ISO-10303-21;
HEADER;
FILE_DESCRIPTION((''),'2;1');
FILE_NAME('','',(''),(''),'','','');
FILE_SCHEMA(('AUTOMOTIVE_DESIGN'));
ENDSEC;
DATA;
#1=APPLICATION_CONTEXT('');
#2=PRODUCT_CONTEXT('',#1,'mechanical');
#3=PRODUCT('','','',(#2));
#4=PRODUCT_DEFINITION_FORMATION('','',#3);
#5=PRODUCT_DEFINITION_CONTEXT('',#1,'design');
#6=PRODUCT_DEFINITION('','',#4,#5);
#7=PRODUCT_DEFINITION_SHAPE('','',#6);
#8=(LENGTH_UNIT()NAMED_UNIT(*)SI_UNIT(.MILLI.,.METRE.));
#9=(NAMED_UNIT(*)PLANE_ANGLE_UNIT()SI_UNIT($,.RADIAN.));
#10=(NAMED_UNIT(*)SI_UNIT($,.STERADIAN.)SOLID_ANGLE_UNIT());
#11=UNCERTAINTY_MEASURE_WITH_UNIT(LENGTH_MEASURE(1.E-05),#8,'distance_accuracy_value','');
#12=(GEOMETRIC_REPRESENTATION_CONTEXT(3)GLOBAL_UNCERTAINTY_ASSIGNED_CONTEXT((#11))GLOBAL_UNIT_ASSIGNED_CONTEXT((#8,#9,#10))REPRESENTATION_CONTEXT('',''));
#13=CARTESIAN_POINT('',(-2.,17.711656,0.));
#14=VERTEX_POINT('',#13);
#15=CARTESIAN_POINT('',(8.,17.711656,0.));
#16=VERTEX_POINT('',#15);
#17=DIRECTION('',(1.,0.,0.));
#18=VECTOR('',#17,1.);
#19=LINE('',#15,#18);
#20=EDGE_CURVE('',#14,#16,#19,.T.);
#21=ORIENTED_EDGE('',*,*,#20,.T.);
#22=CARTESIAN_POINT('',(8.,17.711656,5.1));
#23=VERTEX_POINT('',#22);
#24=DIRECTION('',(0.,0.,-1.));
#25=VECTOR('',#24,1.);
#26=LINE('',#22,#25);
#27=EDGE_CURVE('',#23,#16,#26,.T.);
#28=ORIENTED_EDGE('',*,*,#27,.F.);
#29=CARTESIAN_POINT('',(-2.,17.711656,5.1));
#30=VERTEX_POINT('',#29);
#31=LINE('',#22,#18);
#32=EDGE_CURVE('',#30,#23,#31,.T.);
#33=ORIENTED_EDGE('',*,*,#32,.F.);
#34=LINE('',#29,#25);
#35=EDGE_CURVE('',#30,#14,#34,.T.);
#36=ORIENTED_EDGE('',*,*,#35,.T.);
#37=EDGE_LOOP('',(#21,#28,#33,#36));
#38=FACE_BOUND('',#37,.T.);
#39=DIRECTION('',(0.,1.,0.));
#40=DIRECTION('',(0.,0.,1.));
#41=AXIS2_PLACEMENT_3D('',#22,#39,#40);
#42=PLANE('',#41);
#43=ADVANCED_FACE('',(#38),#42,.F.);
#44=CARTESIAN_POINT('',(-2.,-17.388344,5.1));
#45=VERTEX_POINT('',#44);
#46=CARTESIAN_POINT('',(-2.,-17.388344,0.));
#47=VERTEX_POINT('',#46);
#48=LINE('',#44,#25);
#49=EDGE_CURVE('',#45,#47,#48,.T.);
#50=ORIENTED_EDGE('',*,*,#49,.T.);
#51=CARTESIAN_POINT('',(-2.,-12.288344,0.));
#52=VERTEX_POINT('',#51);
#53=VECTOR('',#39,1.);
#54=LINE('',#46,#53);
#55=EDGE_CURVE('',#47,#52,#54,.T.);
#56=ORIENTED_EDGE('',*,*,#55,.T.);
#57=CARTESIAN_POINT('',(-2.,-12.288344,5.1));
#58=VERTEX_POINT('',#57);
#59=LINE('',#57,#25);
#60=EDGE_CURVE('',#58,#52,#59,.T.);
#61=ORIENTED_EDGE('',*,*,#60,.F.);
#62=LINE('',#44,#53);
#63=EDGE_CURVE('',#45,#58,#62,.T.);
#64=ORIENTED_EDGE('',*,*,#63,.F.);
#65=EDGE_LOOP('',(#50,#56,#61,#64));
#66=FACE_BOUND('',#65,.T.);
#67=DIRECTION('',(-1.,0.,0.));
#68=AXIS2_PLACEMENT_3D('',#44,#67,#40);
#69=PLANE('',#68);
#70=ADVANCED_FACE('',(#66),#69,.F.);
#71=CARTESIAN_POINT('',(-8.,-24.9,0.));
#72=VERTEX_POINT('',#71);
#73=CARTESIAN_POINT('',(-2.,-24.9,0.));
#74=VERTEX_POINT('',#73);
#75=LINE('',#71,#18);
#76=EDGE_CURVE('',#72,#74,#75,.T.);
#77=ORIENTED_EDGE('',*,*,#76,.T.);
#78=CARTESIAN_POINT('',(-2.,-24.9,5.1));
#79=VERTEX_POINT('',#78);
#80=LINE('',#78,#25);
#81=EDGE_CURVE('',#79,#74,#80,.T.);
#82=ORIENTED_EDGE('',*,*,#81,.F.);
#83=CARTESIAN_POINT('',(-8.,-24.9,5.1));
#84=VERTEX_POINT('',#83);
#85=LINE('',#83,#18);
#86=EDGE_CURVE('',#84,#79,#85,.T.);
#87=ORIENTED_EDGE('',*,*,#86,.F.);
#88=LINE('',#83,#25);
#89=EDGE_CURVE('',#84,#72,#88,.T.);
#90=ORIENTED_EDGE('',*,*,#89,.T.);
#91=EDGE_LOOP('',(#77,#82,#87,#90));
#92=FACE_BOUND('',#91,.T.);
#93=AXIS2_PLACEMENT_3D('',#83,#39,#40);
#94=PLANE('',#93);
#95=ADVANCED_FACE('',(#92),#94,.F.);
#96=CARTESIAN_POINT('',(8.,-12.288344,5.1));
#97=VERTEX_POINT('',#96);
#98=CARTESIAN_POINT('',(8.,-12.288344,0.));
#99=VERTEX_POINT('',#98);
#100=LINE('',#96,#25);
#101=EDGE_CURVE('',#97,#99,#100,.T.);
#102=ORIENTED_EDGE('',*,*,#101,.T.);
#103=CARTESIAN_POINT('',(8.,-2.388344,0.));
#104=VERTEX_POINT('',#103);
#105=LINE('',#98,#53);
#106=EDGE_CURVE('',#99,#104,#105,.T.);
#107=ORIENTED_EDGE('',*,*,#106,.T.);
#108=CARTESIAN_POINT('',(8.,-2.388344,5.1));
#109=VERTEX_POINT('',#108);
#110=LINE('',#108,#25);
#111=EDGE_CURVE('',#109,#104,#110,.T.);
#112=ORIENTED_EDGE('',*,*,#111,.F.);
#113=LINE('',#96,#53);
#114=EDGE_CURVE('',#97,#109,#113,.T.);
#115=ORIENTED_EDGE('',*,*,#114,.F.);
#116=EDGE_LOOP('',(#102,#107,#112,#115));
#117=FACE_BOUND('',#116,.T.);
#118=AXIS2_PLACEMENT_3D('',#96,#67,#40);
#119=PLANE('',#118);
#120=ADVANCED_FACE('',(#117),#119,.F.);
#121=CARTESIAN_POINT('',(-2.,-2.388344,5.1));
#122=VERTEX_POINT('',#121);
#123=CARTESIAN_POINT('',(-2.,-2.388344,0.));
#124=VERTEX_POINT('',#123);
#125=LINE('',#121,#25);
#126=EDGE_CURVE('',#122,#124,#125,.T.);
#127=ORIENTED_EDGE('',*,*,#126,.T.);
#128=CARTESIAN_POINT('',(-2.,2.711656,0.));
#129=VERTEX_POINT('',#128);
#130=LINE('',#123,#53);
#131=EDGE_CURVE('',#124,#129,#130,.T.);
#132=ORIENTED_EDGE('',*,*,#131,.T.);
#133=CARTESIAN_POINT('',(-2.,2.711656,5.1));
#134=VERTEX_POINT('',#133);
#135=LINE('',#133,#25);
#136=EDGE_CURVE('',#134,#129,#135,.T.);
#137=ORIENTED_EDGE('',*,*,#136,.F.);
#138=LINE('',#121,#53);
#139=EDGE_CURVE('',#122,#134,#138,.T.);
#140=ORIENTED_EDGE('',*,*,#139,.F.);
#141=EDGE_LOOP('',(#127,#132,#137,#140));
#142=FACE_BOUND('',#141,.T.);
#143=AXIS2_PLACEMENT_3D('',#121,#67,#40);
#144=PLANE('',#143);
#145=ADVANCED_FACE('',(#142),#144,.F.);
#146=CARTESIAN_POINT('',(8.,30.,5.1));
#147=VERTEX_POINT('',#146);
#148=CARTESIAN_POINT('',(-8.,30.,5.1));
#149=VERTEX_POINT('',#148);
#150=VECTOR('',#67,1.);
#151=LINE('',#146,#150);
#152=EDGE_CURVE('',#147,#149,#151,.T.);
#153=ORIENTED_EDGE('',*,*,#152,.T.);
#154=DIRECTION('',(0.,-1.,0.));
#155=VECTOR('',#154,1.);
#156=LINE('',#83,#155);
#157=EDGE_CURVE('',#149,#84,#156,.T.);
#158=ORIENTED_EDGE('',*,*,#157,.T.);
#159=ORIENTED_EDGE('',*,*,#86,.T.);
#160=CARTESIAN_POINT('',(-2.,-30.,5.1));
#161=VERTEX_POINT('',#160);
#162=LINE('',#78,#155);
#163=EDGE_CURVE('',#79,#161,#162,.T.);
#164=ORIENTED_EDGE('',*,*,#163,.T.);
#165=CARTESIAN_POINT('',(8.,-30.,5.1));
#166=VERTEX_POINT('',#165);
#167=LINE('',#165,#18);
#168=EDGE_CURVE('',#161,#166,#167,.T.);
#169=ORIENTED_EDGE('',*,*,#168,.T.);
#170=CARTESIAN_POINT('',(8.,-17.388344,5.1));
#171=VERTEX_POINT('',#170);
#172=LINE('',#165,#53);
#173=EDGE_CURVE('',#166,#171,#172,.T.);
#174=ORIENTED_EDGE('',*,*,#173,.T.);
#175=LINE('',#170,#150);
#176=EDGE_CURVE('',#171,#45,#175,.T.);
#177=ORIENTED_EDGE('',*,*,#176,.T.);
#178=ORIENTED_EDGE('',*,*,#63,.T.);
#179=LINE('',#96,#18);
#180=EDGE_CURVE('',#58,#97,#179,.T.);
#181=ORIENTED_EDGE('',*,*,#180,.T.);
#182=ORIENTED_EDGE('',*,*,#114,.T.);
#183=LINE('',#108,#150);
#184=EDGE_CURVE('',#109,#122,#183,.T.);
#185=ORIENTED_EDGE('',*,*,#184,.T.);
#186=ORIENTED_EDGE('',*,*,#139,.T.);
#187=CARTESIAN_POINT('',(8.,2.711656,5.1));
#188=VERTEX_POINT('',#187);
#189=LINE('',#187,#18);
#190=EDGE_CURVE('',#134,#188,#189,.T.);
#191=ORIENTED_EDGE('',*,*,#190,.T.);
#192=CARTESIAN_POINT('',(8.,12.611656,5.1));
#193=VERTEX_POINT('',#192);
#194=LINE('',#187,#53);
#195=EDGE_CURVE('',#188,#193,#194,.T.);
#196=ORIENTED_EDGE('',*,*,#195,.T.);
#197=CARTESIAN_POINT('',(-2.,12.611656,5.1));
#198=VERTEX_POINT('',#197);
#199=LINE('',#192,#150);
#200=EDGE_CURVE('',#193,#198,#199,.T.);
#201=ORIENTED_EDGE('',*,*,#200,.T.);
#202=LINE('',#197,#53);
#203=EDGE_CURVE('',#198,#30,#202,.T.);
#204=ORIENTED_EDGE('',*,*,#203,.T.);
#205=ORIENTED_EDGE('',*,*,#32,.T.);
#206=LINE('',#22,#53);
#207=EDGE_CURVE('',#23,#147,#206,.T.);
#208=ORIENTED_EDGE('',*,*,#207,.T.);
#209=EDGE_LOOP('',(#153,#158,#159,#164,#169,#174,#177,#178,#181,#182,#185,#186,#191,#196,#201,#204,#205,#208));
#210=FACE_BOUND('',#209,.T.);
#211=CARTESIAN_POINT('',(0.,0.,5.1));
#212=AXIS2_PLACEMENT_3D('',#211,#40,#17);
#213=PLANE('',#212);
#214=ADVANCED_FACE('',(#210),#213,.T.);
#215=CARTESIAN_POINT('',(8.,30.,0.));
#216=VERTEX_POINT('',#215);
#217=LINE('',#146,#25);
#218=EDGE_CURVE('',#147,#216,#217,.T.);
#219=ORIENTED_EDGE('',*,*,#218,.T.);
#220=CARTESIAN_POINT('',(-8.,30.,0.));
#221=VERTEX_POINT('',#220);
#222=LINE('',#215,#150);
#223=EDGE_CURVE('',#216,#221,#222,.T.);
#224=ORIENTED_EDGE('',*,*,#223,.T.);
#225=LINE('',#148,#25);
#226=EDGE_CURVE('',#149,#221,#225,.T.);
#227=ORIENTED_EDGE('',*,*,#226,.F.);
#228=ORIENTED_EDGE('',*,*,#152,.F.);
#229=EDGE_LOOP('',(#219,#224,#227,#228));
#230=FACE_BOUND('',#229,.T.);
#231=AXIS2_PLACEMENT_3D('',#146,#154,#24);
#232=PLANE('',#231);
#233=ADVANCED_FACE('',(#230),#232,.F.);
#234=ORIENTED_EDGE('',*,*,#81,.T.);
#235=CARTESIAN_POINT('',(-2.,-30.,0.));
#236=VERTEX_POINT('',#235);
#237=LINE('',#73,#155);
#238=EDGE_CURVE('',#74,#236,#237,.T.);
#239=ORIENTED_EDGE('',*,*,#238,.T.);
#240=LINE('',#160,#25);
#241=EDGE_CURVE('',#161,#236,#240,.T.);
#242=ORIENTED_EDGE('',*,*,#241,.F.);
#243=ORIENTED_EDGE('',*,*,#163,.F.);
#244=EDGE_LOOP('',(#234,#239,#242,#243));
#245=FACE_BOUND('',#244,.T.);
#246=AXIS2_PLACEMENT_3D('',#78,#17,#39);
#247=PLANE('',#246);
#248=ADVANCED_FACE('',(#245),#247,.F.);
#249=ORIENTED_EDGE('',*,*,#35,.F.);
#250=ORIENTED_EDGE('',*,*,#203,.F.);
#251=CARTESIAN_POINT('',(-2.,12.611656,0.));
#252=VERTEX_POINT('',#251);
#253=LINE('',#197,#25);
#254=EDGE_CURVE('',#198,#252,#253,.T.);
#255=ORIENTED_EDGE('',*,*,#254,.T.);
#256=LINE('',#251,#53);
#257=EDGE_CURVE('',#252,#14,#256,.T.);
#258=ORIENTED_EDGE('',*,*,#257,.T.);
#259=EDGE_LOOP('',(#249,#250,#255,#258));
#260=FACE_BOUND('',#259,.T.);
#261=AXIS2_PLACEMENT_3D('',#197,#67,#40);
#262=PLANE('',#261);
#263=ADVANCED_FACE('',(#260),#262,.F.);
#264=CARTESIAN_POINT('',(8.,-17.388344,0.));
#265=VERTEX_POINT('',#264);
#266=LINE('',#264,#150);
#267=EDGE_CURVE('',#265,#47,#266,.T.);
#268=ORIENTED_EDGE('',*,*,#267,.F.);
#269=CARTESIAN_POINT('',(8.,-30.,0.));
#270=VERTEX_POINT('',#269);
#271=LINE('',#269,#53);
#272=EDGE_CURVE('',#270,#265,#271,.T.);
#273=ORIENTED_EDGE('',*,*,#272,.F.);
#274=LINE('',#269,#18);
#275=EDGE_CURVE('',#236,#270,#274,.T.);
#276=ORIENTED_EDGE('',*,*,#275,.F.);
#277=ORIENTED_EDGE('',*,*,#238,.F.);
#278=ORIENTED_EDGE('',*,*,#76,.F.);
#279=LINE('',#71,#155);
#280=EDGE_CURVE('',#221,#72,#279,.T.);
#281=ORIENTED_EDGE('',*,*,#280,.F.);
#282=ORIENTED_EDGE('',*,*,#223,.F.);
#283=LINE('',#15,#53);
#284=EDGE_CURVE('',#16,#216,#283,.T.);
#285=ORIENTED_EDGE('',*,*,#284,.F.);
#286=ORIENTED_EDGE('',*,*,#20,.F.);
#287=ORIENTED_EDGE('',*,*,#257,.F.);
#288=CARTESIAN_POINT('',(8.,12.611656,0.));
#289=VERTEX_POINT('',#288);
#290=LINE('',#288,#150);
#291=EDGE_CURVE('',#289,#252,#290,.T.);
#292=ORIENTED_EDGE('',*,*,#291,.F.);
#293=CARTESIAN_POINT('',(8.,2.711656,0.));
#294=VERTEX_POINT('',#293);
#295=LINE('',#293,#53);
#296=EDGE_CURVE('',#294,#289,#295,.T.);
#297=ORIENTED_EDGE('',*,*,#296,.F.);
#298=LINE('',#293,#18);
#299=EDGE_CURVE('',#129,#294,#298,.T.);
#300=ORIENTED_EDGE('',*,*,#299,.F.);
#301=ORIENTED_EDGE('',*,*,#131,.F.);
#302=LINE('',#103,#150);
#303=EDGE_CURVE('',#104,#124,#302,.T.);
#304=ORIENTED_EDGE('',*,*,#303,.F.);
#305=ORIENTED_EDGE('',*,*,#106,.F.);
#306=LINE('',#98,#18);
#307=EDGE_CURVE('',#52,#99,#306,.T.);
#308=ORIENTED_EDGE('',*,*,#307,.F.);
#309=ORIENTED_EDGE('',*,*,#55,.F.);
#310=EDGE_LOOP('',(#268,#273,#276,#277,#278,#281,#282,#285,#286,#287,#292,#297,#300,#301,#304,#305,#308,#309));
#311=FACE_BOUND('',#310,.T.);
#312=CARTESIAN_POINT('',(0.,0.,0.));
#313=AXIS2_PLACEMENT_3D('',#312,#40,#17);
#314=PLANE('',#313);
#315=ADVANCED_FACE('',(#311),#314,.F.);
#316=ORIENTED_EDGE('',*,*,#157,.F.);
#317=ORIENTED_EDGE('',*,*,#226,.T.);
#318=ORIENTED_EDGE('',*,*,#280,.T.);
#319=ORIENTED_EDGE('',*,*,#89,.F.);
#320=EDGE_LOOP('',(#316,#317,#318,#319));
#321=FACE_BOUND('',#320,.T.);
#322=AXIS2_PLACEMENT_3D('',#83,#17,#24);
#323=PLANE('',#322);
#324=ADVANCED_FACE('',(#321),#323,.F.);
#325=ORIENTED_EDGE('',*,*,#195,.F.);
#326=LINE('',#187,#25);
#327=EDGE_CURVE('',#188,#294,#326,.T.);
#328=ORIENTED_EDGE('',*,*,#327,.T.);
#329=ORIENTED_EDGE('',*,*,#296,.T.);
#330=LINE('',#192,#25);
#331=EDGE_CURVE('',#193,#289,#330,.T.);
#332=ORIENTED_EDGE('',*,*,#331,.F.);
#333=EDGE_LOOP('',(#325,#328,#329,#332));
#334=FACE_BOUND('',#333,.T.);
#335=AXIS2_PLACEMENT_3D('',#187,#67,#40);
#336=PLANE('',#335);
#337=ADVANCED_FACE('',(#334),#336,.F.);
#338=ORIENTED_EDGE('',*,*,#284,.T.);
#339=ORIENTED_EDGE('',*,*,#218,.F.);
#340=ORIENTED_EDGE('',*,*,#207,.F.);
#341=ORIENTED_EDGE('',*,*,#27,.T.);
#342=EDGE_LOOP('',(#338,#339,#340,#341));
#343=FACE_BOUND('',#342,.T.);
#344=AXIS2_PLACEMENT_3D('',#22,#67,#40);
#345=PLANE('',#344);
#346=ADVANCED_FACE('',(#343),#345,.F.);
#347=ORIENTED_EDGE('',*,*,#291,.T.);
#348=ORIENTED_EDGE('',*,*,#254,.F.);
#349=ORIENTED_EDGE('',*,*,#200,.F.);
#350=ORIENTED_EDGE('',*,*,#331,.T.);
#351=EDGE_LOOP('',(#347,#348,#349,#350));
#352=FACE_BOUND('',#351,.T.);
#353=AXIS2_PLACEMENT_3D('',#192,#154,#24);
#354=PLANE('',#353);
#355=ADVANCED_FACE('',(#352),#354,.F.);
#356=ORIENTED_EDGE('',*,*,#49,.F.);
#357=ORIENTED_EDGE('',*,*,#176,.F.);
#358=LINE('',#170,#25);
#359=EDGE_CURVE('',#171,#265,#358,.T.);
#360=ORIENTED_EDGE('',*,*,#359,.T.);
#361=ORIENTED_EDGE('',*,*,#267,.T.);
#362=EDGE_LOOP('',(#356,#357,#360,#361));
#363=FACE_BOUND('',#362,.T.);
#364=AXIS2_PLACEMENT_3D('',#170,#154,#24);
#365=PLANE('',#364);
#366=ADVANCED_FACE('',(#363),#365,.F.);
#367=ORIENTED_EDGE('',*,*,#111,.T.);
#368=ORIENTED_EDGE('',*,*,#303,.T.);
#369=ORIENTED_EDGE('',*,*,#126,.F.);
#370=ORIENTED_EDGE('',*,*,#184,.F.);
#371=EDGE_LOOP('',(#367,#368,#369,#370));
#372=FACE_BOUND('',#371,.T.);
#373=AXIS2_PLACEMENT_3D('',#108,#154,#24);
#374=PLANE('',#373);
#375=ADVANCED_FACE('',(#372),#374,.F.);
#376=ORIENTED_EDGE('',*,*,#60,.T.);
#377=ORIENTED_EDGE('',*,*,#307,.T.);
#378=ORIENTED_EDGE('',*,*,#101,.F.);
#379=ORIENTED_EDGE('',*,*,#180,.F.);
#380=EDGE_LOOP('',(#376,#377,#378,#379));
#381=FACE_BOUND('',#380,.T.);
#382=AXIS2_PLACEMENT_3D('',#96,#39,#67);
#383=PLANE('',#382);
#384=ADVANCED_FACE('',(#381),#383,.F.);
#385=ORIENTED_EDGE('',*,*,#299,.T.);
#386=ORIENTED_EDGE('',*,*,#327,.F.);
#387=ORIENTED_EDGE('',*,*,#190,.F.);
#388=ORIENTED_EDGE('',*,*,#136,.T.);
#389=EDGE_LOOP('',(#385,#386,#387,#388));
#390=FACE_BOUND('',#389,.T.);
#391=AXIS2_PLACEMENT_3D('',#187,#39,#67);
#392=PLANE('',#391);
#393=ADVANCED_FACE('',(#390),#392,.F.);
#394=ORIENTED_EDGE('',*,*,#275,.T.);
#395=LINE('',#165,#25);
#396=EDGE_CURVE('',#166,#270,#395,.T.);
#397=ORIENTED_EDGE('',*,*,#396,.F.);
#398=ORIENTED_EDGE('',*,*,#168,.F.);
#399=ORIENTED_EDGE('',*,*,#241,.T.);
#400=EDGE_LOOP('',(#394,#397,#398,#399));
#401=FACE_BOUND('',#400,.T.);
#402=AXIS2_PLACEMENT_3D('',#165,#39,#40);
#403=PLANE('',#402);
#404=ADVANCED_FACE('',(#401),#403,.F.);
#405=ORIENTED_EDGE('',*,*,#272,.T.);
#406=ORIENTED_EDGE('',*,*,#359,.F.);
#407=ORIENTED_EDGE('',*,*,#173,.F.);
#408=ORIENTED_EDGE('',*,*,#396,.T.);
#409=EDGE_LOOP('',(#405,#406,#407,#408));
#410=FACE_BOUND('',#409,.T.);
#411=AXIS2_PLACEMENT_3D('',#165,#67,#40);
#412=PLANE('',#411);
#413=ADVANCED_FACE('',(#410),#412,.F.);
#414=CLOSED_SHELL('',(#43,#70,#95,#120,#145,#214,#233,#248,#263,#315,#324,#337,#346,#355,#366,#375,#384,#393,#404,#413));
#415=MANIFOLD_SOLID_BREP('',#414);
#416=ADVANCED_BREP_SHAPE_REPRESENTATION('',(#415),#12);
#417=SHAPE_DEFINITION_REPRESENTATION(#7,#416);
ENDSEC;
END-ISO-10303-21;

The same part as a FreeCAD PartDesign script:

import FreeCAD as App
import Part
import Sketcher
from FreeCAD import Vector

doc = App.newDocument("Part")
body = doc.addObject("PartDesign::Body", "Body")

# Sketch on XY plane
sketch1 = body.newObject("Sketcher::SketchObject", "Sketch")
sketch1.AttachmentSupport = (doc.getObject("XY_Plane"), [""])
sketch1.MapMode = "FlatFace"
sketch1.addGeometry(Part.LineSegment(Vector(-8, -24.9, 0), Vector(-2, -24.9, 0)), False)
sketch1.addGeometry(Part.LineSegment(Vector(-2, -24.9, 0), Vector(-2, -30, 0)), False)
sketch1.addGeometry(Part.LineSegment(Vector(-2, -30, 0), Vector(8, -30, 0)), False)
sketch1.addGeometry(Part.LineSegment(Vector(8, -30, 0), Vector(8, -17.388344, 0)), False)
sketch1.addGeometry(Part.LineSegment(Vector(8, -17.388344, 0), Vector(-2, -17.388344, 0)), False)
sketch1.addGeometry(Part.LineSegment(Vector(-2, -17.388344, 0), Vector(-2, -12.288344, 0)), False)
sketch1.addGeometry(Part.LineSegment(Vector(-2, -12.288344, 0), Vector(8, -12.288344, 0)), False)
sketch1.addGeometry(Part.LineSegment(Vector(8, -12.288344, 0), Vector(8, -2.388344, 0)), False)
sketch1.addGeometry(Part.LineSegment(Vector(8, -2.388344, 0), Vector(-2, -2.388344, 0)), False)
sketch1.addGeometry(Part.LineSegment(Vector(-2, -2.388344, 0), Vector(-2, 2.711656, 0)), False)
sketch1.addGeometry(Part.LineSegment(Vector(-2, 2.711656, 0), Vector(8, 2.711656, 0)), False)
sketch1.addGeometry(Part.LineSegment(Vector(8, 2.711656, 0), Vector(8, 12.611656, 0)), False)
sketch1.addGeometry(Part.LineSegment(Vector(8, 12.611656, 0), Vector(-2, 12.611656, 0)), False)
sketch1.addGeometry(Part.LineSegment(Vector(-2, 12.611656, 0), Vector(-2, 17.711656, 0)), False)
sketch1.addGeometry(Part.LineSegment(Vector(-2, 17.711656, 0), Vector(8, 17.711656, 0)), False)
sketch1.addGeometry(Part.LineSegment(Vector(8, 17.711656, 0), Vector(8, 30, 0)), False)
sketch1.addGeometry(Part.LineSegment(Vector(8, 30, 0), Vector(-8, 30, 0)), False)
sketch1.addGeometry(Part.LineSegment(Vector(-8, 30, 0), Vector(-8, -24.9, 0)), False)
sketch1.addConstraint(Sketcher.Constraint("Coincident", 0, 2, 1, 1))
sketch1.addConstraint(Sketcher.Constraint("Coincident", 1, 2, 2, 1))
sketch1.addConstraint(Sketcher.Constraint("Coincident", 2, 2, 3, 1))
sketch1.addConstraint(Sketcher.Constraint("Coincident", 3, 2, 4, 1))
sketch1.addConstraint(Sketcher.Constraint("Coincident", 4, 2, 5, 1))
sketch1.addConstraint(Sketcher.Constraint("Coincident", 5, 2, 6, 1))
sketch1.addConstraint(Sketcher.Constraint("Coincident", 6, 2, 7, 1))
sketch1.addConstraint(Sketcher.Constraint("Coincident", 7, 2, 8, 1))
sketch1.addConstraint(Sketcher.Constraint("Coincident", 8, 2, 9, 1))
sketch1.addConstraint(Sketcher.Constraint("Coincident", 9, 2, 10, 1))
sketch1.addConstraint(Sketcher.Constraint("Coincident", 10, 2, 11, 1))
sketch1.addConstraint(Sketcher.Constraint("Coincident", 11, 2, 12, 1))
sketch1.addConstraint(Sketcher.Constraint("Coincident", 12, 2, 13, 1))
sketch1.addConstraint(Sketcher.Constraint("Coincident", 13, 2, 14, 1))
sketch1.addConstraint(Sketcher.Constraint("Coincident", 14, 2, 15, 1))
sketch1.addConstraint(Sketcher.Constraint("Coincident", 15, 2, 16, 1))
sketch1.addConstraint(Sketcher.Constraint("Coincident", 16, 2, 17, 1))
sketch1.addConstraint(Sketcher.Constraint("Coincident", 17, 2, 0, 1))
sketch1.addConstraint(Sketcher.Constraint("Horizontal", 0))
sketch1.addConstraint(Sketcher.Constraint("Vertical", 1))
sketch1.addConstraint(Sketcher.Constraint("Horizontal", 2))
sketch1.addConstraint(Sketcher.Constraint("Vertical", 3))
sketch1.addConstraint(Sketcher.Constraint("Horizontal", 4))
sketch1.addConstraint(Sketcher.Constraint("Vertical", 5))
sketch1.addConstraint(Sketcher.Constraint("Horizontal", 6))
sketch1.addConstraint(Sketcher.Constraint("Vertical", 7))
sketch1.addConstraint(Sketcher.Constraint("Horizontal", 8))
sketch1.addConstraint(Sketcher.Constraint("Vertical", 9))
sketch1.addConstraint(Sketcher.Constraint("Horizontal", 10))
sketch1.addConstraint(Sketcher.Constraint("Vertical", 11))
sketch1.addConstraint(Sketcher.Constraint("Horizontal", 12))
sketch1.addConstraint(Sketcher.Constraint("Vertical", 13))
sketch1.addConstraint(Sketcher.Constraint("Horizontal", 14))
sketch1.addConstraint(Sketcher.Constraint("Vertical", 15))
sketch1.addConstraint(Sketcher.Constraint("Horizontal", 16))
sketch1.addConstraint(Sketcher.Constraint("Vertical", 17))
sketch1.addConstraint(Sketcher.Constraint("Symmetric", 2, 2, 16, 2, -1, 1))
sketch1.addConstraint(Sketcher.Constraint("Vertical", 1, 2, 4, 2))
sketch1.addConstraint(Sketcher.Constraint("Vertical", 3, 2, 6, 2))
sketch1.addConstraint(Sketcher.Constraint("Vertical", 5, 2, 8, 2))
sketch1.addConstraint(Sketcher.Constraint("Vertical", 7, 2, 10, 2))
sketch1.addConstraint(Sketcher.Constraint("Vertical", 9, 2, 12, 2))
sketch1.addConstraint(Sketcher.Constraint("Vertical", 11, 2, 14, 2))
sketch1.addConstraint(Sketcher.Constraint("Equal", 1, 5))
sketch1.addConstraint(Sketcher.Constraint("Equal", 5, 9))
sketch1.addConstraint(Sketcher.Constraint("Equal", 7, 11))
sketch1.addConstraint(Sketcher.Constraint("Equal", 9, 13))
sketch1.addConstraint(Sketcher.Constraint("DistanceX", 0, 1, 0, 2, 6.0))
sketch1.addConstraint(Sketcher.Constraint("DistanceX", 2, 1, 2, 2, 10.0))
sketch1.addConstraint(Sketcher.Constraint("DistanceY", 1, 2, 1, 1, 5.1))
sketch1.addConstraint(Sketcher.Constraint("DistanceY", 7, 1, 7, 2, 9.9))
sketch1.addConstraint(Sketcher.Constraint("DistanceY", 17, 2, 17, 1, 54.9))
sketch1.addConstraint(Sketcher.Constraint("DistanceY", 3, 1, 3, 2, 12.611656))
pad1 = body.newObject("PartDesign::Pad", "Pad")
pad1.Profile = sketch1
pad1.Length = 5.1

doc.recompute()
